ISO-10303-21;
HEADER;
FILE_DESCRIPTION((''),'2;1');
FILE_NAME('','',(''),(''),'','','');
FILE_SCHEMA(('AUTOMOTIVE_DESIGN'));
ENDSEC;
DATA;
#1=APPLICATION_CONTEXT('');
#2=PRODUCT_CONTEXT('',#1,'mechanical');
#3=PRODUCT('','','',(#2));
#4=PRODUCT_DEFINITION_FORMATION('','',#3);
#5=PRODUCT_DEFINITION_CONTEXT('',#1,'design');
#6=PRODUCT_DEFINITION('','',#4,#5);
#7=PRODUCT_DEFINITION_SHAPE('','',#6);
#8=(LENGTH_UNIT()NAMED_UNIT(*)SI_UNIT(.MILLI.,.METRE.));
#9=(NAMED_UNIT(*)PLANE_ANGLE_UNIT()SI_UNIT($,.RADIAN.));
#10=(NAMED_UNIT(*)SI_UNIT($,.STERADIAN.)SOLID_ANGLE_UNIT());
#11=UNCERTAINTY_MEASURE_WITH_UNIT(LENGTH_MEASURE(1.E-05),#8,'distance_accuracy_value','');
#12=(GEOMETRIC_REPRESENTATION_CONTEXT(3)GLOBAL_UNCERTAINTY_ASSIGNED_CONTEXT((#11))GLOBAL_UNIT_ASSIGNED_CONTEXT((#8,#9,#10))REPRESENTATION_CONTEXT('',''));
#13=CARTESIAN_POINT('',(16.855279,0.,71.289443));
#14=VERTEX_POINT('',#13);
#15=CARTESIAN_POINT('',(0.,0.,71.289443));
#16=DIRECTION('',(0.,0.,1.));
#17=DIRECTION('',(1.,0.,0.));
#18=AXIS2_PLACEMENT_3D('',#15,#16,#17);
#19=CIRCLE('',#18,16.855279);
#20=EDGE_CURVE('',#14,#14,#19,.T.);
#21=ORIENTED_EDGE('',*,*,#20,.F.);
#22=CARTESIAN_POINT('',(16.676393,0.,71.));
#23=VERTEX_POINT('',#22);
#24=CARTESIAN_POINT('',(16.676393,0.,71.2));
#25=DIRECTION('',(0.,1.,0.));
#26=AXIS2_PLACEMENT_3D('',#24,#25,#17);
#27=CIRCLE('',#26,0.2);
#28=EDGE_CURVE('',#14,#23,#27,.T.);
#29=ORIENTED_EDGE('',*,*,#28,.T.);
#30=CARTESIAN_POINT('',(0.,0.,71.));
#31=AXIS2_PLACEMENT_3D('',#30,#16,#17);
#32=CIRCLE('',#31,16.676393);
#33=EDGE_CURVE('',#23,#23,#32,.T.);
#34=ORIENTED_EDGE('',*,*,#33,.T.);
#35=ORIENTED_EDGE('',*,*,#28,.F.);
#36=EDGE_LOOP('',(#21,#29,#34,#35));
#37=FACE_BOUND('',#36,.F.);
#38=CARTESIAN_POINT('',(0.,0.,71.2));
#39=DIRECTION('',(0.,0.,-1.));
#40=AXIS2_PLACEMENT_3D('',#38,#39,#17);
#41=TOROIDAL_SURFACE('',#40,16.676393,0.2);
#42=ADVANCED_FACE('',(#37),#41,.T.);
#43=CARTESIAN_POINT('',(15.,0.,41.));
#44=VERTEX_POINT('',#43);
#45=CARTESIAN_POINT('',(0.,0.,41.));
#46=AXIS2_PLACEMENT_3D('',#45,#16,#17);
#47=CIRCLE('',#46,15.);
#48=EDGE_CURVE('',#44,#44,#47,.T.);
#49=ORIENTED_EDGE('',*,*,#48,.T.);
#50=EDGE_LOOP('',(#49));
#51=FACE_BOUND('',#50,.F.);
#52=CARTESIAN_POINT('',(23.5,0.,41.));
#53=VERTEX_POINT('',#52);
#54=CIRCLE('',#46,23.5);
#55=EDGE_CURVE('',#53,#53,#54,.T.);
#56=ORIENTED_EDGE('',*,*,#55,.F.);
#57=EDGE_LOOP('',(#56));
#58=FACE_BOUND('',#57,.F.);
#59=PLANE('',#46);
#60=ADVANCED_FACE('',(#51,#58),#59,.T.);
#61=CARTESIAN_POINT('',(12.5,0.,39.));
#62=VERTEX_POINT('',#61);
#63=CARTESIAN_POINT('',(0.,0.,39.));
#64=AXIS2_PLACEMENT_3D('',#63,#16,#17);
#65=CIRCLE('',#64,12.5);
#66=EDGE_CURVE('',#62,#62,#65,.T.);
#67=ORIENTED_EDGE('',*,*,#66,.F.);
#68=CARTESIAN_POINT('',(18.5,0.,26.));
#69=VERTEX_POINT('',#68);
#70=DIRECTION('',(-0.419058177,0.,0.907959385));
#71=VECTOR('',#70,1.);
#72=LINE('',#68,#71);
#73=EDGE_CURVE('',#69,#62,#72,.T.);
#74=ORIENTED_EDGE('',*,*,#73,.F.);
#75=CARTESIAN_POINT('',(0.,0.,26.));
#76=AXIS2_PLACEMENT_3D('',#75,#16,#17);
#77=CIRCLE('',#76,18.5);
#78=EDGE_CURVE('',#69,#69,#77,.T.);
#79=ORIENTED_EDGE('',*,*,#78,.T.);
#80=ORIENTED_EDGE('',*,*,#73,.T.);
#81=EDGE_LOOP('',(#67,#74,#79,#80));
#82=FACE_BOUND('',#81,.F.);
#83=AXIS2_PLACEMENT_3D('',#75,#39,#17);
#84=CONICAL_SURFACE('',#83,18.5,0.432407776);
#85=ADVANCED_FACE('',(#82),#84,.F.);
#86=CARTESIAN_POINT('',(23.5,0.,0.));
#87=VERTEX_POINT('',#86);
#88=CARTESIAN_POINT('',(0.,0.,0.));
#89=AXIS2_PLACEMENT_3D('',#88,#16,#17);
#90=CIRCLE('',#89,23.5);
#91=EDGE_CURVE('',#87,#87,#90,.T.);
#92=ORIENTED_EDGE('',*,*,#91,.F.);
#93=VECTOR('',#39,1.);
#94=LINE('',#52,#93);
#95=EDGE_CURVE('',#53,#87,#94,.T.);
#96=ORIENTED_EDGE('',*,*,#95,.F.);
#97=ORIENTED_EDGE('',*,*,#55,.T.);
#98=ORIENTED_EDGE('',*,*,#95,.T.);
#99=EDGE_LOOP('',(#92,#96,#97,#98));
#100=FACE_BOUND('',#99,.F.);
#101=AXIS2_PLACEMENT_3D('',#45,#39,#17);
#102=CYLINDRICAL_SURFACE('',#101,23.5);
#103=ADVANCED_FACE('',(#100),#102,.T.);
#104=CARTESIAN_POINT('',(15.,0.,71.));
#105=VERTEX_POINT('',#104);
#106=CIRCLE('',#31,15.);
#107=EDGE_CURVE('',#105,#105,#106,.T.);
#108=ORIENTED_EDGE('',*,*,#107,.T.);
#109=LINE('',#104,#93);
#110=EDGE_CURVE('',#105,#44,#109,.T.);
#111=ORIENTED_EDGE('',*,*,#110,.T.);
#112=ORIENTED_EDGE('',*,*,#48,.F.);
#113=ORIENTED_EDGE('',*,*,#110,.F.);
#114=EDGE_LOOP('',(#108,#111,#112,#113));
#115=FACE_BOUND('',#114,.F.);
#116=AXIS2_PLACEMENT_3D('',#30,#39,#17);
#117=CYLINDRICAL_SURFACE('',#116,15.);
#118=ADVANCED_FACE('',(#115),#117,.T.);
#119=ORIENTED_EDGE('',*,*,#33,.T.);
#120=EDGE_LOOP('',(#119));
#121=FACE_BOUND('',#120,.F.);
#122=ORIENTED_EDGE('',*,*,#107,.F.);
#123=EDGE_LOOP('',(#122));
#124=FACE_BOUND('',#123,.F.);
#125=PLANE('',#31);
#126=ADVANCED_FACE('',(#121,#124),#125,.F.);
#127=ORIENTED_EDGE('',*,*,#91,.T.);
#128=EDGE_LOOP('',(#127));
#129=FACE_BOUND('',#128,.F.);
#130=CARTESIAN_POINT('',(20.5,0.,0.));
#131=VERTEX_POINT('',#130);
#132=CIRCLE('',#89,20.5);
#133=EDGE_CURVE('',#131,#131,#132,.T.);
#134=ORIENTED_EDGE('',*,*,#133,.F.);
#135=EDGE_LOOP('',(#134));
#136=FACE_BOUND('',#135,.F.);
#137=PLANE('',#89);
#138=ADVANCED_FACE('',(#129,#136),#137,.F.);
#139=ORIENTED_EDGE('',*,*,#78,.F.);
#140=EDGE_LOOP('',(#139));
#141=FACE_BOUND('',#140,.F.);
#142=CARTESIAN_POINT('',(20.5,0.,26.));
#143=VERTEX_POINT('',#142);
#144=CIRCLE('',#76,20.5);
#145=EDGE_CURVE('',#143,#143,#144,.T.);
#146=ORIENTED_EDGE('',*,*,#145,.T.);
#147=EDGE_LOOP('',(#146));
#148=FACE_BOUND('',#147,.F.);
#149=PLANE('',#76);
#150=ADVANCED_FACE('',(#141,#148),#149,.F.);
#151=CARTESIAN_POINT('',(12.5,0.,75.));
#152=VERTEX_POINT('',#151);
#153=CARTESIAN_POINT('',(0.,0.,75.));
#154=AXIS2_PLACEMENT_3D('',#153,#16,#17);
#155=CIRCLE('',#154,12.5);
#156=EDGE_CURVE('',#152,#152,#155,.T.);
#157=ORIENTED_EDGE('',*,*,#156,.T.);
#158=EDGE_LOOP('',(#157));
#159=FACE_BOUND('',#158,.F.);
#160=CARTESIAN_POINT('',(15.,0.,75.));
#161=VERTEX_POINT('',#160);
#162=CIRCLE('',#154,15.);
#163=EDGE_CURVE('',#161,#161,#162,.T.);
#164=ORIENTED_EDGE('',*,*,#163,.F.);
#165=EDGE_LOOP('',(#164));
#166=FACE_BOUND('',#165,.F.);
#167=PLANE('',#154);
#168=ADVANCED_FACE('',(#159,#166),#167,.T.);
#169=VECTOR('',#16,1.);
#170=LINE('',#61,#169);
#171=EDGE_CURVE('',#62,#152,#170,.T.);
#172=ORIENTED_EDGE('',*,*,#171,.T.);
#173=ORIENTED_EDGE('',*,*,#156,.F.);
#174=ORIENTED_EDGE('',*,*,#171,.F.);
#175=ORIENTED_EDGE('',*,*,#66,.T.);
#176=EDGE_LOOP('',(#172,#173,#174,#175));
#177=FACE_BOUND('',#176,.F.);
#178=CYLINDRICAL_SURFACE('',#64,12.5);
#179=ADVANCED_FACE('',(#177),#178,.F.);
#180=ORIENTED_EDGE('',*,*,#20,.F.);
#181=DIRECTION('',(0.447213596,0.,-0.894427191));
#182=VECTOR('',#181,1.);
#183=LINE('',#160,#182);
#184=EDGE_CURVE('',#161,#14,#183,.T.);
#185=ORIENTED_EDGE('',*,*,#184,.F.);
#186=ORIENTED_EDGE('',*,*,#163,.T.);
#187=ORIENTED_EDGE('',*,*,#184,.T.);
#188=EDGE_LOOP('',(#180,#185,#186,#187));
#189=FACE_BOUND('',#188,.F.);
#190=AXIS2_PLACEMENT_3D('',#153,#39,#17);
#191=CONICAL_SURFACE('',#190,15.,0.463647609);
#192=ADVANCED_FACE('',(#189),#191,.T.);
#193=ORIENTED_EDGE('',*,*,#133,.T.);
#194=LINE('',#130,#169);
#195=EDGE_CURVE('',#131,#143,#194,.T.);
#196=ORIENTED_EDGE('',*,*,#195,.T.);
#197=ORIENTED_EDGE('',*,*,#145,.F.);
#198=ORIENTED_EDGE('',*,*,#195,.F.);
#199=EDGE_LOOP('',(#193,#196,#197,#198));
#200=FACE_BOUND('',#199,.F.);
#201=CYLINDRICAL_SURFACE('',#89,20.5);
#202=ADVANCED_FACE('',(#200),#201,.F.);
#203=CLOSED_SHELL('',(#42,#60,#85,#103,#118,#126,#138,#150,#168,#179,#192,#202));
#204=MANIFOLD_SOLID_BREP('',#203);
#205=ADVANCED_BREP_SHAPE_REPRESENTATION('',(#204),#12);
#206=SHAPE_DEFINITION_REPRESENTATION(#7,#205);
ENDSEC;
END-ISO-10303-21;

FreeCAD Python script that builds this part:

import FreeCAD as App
import Part
import Sketcher

V = App.Vector


def edges_at(feature, points):
    """Names of the edges that pass closest to the given points."""
    edges = feature.Shape.Edges
    near = lambda p: min(range(len(edges)), key=lambda i: edges[i].distToShape(Part.Vertex(*p))[0])
    return sorted({f"Edge{near(p) + 1}" for p in points})


def add_polygon(sketch, points):
    """Adds a closed chain of lines whose ends are joined by coincident constraints."""
    first, n = sketch.GeometryCount, len(points)
    for a, b in zip(points, points[1:] + points[:1]):
        sketch.addGeometry(Part.LineSegment(App.Vector(*a, 0), App.Vector(*b, 0)), False)
    for i in range(n):
        sketch.addConstraint(Sketcher.Constraint("Coincident", first + i, 2, first + (i + 1) % n, 1))

doc = App.newDocument("Part")
body = doc.addObject("PartDesign::Body", "Body")

# Sketch on XZ plane
sketch1 = body.newObject("Sketcher::SketchObject", "Sketch")
sketch1.AttachmentSupport = (doc.getObject("XZ_Plane"), [""])
sketch1.MapMode = "FlatFace"
add_polygon(sketch1, [(17, 71), (15, 75), (12.5, 75), (12.5, 39), (18.5, 26), (20.5, 26), (20.5, 0), (23.5, 0), (23.5, 41), (15, 41), (15, 71)])  # lines 0-10
sketch1.addConstraint(Sketcher.Constraint("Horizontal", 1))
sketch1.addConstraint(Sketcher.Constraint("Vertical", 2))
sketch1.addConstraint(Sketcher.Constraint("Horizontal", 4))
sketch1.addConstraint(Sketcher.Constraint("Vertical", 5))
sketch1.addConstraint(Sketcher.Constraint("Horizontal", 6))
sketch1.addConstraint(Sketcher.Constraint("Vertical", 7))
sketch1.addConstraint(Sketcher.Constraint("Horizontal", 8))
sketch1.addConstraint(Sketcher.Constraint("Vertical", 9))
sketch1.addConstraint(Sketcher.Constraint("Horizontal", 10))
sketch1.addConstraint(Sketcher.Constraint("PointOnObject", 5, 2, -1))
sketch1.addConstraint(Sketcher.Constraint("Vertical", 0, 2, 8, 2))
sketch1.addConstraint(Sketcher.Constraint("Equal", 4, 10))
sketch1.addConstraint(Sketcher.Constraint("DistanceX", 4, 1, 4, 2, 2.0))
sketch1.addConstraint(Sketcher.Constraint("DistanceX", 6, 1, 6, 2, 3.0))
sketch1.addConstraint(Sketcher.Constraint("DistanceY", 2, 2, 2, 1, 36.0))
sketch1.addConstraint(Sketcher.Constraint("DistanceY", 5, 2, 5, 1, 26.0))
sketch1.addConstraint(Sketcher.Constraint("DistanceY", 7, 1, 7, 2, 41.0))
sketch1.addConstraint(Sketcher.Constraint("DistanceY", 9, 1, 9, 2, 30.0))
sketch1.addConstraint(Sketcher.Constraint("DistanceX", 1, 2, 1, 1, 2.5))
sketch1.addConstraint(Sketcher.Constraint("DistanceX", 8, 2, 8, 1, 8.5))
sketch1.addConstraint(Sketcher.Constraint("DistanceX", -1, 1, 0, 2, 15.0))
sketch1.addConstraint(Sketcher.Constraint("DistanceY", -1, 1, 0, 2, 75.0))
revolution = body.newObject("PartDesign::Revolution", "Revolution")
revolution.Profile = sketch1
revolution.ReferenceAxis = (sketch1, ["V_Axis"])
revolution.Angle = 360
doc.recompute()

fillet = body.newObject("PartDesign::Fillet", "Fillet")
fillet.Base = (revolution, edges_at(revolution, [(-17, 0, 71)]))
fillet.Radius = 0.2

doc.recompute()
